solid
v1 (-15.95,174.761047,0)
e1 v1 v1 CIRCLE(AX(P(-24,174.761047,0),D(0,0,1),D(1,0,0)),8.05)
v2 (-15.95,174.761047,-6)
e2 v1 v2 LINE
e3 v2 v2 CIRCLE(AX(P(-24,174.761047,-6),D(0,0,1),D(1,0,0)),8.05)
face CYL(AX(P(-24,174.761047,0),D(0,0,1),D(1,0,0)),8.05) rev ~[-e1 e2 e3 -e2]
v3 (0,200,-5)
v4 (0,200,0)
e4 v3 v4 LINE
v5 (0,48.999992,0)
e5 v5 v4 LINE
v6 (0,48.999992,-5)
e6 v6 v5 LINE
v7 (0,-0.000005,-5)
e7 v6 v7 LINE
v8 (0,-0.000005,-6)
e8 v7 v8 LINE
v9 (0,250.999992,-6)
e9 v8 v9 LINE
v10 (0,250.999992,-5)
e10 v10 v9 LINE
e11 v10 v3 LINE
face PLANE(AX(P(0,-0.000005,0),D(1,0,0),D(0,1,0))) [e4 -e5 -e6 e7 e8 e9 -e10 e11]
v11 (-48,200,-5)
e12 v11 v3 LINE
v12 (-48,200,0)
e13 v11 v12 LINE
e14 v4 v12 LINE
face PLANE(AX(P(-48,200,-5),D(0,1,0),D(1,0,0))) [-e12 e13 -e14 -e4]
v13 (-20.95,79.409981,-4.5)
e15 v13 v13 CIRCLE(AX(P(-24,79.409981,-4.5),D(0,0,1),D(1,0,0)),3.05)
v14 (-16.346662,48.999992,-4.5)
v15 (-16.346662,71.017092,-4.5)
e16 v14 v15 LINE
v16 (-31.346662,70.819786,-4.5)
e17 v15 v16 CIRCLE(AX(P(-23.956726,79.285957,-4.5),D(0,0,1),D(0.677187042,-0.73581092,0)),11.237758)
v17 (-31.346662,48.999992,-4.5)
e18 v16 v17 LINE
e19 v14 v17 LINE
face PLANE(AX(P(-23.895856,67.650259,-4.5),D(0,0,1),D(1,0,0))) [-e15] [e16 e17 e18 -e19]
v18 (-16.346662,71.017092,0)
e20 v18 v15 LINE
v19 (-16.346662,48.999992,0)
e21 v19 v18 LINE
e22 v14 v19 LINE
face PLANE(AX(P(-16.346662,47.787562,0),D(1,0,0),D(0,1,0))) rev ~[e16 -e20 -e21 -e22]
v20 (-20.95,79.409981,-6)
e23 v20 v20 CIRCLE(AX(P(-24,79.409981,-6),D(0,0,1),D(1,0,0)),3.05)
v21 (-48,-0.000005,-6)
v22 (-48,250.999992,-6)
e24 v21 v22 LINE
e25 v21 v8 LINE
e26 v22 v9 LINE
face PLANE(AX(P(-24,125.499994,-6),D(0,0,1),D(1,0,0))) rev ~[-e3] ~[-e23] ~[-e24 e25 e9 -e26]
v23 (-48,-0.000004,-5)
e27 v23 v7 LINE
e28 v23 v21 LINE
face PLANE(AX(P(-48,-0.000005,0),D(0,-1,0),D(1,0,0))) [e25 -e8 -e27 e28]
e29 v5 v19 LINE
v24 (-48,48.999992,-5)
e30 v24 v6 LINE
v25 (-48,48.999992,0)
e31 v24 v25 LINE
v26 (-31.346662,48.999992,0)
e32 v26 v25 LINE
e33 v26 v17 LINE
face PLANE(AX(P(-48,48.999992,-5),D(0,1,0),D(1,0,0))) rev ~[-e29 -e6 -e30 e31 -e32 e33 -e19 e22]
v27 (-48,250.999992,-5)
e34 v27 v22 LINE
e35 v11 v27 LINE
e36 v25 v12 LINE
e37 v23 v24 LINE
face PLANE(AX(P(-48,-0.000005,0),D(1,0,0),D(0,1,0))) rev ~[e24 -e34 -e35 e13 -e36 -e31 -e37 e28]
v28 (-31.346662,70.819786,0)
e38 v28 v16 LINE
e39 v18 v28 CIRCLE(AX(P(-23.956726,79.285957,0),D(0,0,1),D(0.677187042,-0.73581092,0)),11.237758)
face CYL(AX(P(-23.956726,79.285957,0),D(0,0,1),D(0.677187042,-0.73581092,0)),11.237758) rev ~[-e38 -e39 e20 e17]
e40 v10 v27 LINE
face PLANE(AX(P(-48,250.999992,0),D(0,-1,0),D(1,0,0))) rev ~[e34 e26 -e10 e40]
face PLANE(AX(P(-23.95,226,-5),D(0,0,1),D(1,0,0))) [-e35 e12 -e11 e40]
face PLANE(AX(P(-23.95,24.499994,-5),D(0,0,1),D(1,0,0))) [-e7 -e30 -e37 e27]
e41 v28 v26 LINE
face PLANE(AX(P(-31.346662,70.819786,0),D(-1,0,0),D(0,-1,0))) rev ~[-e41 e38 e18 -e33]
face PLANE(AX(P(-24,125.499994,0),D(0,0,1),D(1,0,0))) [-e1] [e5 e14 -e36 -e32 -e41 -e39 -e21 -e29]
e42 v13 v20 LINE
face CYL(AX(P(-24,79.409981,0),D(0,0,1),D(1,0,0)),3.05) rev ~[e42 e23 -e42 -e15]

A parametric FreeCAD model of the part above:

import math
import FreeCAD as App
import Part
import Sketcher
from FreeCAD import Vector
Q = App.Units.Quantity


def add_polygon(sketch, points):
    """Adds a closed chain of lines whose ends are joined by coincident constraints."""
    first, n = sketch.GeometryCount, len(points)
    for a, b in zip(points, points[1:] + points[:1]):
        sketch.addGeometry(Part.LineSegment(App.Vector(*a, 0), App.Vector(*b, 0)), False)
    for i in range(n):
        sketch.addConstraint(Sketcher.Constraint("Coincident", first + i, 2, first + (i + 1) % n, 1))

doc = App.newDocument("Part")
body = doc.addObject("PartDesign::Body", "Body")

# Sketch on XY plane
sketch1 = body.newObject("Sketcher::SketchObject", "Sketch")
sketch1.AttachmentSupport = (doc.getObject("XY_Plane"), [""])
sketch1.MapMode = "FlatFace"
add_polygon(sketch1, [(-48, 251), (-48, 0), (0, 0), (0, 251)])  # lines 0-3
sketch1.addGeometry(Part.Circle(Vector(-24, 79.4, 0), Vector(0, 0, 1), 3), False)  # 4
sketch1.addGeometry(Part.Circle(Vector(-24, 174.8, 0), Vector(0, 0, 1), 8.1), False)  # 5
sketch1.addConstraint(Sketcher.Constraint("Vertical", 0))
sketch1.addConstraint(Sketcher.Constraint("Horizontal", 1))
sketch1.addConstraint(Sketcher.Constraint("Vertical", 2))
sketch1.addConstraint(Sketcher.Constraint("Horizontal", 3))
sketch1.addConstraint(Sketcher.Constraint("Coincident", 1, 2, -1, 1))
sketch1.addConstraint(Sketcher.Constraint("Vertical", 4, 3, 5, 3))
sketch1.addConstraint(Sketcher.Constraint("Diameter", 4, Q("6.1 mm")))
sketch1.addConstraint(Sketcher.Constraint("Diameter", 5, Q("16.1 mm")))
sketch1.addConstraint(Sketcher.Constraint("DistanceX", 1, 1, 1, 2, Q("48 mm")))
sketch1.addConstraint(Sketcher.Constraint("DistanceX", 4, 3, -1, 1, Q("24 mm")))
sketch1.addConstraint(Sketcher.Constraint("DistanceY", 0, 2, 0, 1, Q("250.999997 mm")))
sketch1.addConstraint(Sketcher.Constraint("DistanceY", -1, 1, 4, 3, Q("79.409981 mm")))
sketch1.addConstraint(Sketcher.Constraint("DistanceY", 0, 2, 5, 3, Q("174.761051 mm")))
pad1 = body.newObject("PartDesign::Pad", "Pad")
pad1.Profile = sketch1
pad1.Length = 6
pad1.Reversed = True

# Sketch on XY plane
sketch2 = body.newObject("Sketcher::SketchObject", "Sketch001")
sketch2.AttachmentSupport = (doc.getObject("XY_Plane"), [""])
sketch2.MapMode = "FlatFace"
sketch2.addGeometry(Part.LineSegment(Vector(-31, 48, 0), Vector(-16, 48, 0)), False)
sketch2.addGeometry(Part.LineSegment(Vector(-16, 48, 0), Vector(-16, 71, 0)), False)
sketch2.addGeometry(Part.ArcOfCircle(Part.Circle(Vector(-24, 79, 0), Vector(0, 0, 1), 11), math.radians(-47), math.radians(229)), False)
sketch2.addGeometry(Part.LineSegment(Vector(-31, 71, 0), Vector(-31, 48, 0)), False)
sketch2.addConstraint(Sketcher.Constraint("Coincident", 0, 2, 1, 1))
sketch2.addConstraint(Sketcher.Constraint("Coincident", 1, 2, 2, 1))
sketch2.addConstraint(Sketcher.Constraint("Coincident", 2, 2, 3, 1))
sketch2.addConstraint(Sketcher.Constraint("Coincident", 3, 2, 0, 1))
sketch2.addConstraint(Sketcher.Constraint("Horizontal", 0))
sketch2.addConstraint(Sketcher.Constraint("Vertical", 1))
sketch2.addConstraint(Sketcher.Constraint("Vertical", 3))
sketch2.addConstraint(Sketcher.Constraint("DistanceX", 0, 1, 0, 2, Q("15 mm")))
sketch2.addConstraint(Sketcher.Constraint("Radius", 2, Q("11.237758 mm")))
sketch2.addConstraint(Sketcher.Constraint("DistanceY", 1, 1, 1, 2, Q("23.22953 mm")))
sketch2.addConstraint(Sketcher.Constraint("DistanceY", 3, 2, 3, 1, Q("23.032224 mm")))
sketch2.addConstraint(Sketcher.Constraint("DistanceX", 0, 2, -1, 1, Q("16.346662 mm")))
sketch2.addConstraint(Sketcher.Constraint("DistanceY", -1, 1, 2, 3, Q("79.285957 mm")))
pocket1 = body.newObject("PartDesign::Pocket", "Pocket")
pocket1.Profile = sketch2
pocket1.Length = 4.5

# Sketch on XY plane
sketch3 = body.newObject("Sketcher::SketchObject", "Sketch002")
sketch3.AttachmentSupport = (doc.getObject("XY_Plane"), [""])
sketch3.MapMode = "FlatFace"
sketch3.AttachmentOffset = App.Placement(Vector(0, 0, -5), App.Rotation())
add_polygon(sketch3, [(-48, 49), (-48, 0), (0, 0), (0, 49)])  # lines 0-3
sketch3.addConstraint(Sketcher.Constraint("Vertical", 0))
sketch3.addConstraint(Sketcher.Constraint("Horizontal", 1))
sketch3.addConstraint(Sketcher.Constraint("Vertical", 2))
sketch3.addConstraint(Sketcher.Constraint("Horizontal", 3))
sketch3.addConstraint(Sketcher.Constraint("DistanceX", 1, 1, 1, 2, Q("48.1 mm")))
sketch3.addConstraint(Sketcher.Constraint("DistanceX", 0, 2, -1, 1, Q("48 mm")))
sketch3.addConstraint(Sketcher.Constraint("DistanceY", 0, 2, 0, 1, Q("48.999997 mm")))
sketch3.addConstraint(Sketcher.Constraint("DistanceY", -1, 1, 2, 2, Q("48.999992 mm")))
pocket2 = body.newObject("PartDesign::Pocket", "Pocket001")
pocket2.Profile = sketch3
pocket2.Type = "ThroughAll"
pocket2.Reversed = True

# Sketch on XY plane
sketch4 = body.newObject("Sketcher::SketchObject", "Sketch003")
sketch4.AttachmentSupport = (doc.getObject("XY_Plane"), [""])
sketch4.MapMode = "FlatFace"
sketch4.AttachmentOffset = App.Placement(Vector(0, 0, -5), App.Rotation())
add_polygon(sketch4, [(-48, 252), (-48, 200), (0, 200), (0, 252)])  # lines 0-3
sketch4.addConstraint(Sketcher.Constraint("Vertical", 0))
sketch4.addConstraint(Sketcher.Constraint("Horizontal", 1))
sketch4.addConstraint(Sketcher.Constraint("Vertical", 2))
sketch4.addConstraint(Sketcher.Constraint("Horizontal", 3))
sketch4.addConstraint(Sketcher.Constraint("DistanceY", 0, 2, 0, 1, Q("52 mm")))
sketch4.addConstraint(Sketcher.Constraint("DistanceX", 1, 1, 1, 2, Q("48.1 mm")))
sketch4.addConstraint(Sketcher.Constraint("DistanceX", 0, 2, -1, 1, Q("48 mm")))
sketch4.addConstraint(Sketcher.Constraint("DistanceY", -1, 1, 0, 2, Q("200 mm")))
pocket3 = body.newObject("PartDesign::Pocket", "Pocket002")
pocket3.Profile = sketch4
pocket3.Type = "ThroughAll"
pocket3.Reversed = True

doc.recompute()
